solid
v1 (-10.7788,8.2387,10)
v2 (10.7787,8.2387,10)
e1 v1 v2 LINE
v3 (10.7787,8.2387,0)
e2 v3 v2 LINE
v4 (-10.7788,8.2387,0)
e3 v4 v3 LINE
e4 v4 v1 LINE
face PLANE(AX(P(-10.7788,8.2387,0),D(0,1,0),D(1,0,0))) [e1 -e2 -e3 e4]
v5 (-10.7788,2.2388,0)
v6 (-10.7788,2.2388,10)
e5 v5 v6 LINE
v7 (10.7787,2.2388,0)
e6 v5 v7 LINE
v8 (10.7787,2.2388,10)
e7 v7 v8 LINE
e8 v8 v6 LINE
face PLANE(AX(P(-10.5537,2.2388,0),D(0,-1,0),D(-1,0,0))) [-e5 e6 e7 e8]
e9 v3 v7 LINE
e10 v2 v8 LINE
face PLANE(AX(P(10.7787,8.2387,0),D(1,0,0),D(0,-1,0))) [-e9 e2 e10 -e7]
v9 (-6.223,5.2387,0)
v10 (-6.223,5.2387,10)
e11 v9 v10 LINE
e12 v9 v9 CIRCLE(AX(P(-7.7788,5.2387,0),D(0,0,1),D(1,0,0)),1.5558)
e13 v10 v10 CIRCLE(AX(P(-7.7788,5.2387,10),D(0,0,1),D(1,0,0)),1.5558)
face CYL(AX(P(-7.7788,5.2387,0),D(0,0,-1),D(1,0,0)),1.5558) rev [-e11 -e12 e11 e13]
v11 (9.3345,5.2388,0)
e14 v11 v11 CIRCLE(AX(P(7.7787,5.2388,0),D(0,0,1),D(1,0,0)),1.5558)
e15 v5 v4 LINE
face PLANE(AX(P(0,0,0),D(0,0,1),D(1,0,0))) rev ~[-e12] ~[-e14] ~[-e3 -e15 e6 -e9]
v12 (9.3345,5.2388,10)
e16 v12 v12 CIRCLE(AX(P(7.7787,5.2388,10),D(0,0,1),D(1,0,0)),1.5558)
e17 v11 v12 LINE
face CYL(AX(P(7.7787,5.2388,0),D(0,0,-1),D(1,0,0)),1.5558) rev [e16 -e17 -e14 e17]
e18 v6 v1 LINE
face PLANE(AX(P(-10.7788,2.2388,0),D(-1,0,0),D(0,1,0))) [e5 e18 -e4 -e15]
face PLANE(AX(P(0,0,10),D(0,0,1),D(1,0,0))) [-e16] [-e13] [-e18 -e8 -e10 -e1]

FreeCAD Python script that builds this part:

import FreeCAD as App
import Part
import Sketcher
from FreeCAD import Vector

doc = App.newDocument("Part")
body = doc.addObject("PartDesign::Body", "Body")

# Sketch on XY plane
sketch1 = body.newObject("Sketcher::SketchObject", "Sketch")
sketch1.AttachmentSupport = (doc.getObject("XY_Plane"), [""])
sketch1.MapMode = "FlatFace"
sketch1.addGeometry(Part.LineSegment(Vector(-10.7788, 2.2388, 0), Vector(10.7787, 2.2388, 0)), False)
sketch1.addGeometry(Part.LineSegment(Vector(10.7787, 2.2388, 0), Vector(10.7787, 8.2387, 0)), False)
sketch1.addGeometry(Part.LineSegment(Vector(10.7787, 8.2387, 0), Vector(-10.7788, 8.2387, 0)), False)
sketch1.addGeometry(Part.LineSegment(Vector(-10.7788, 8.2387, 0), Vector(-10.7788, 2.2388, 0)), False)
sketch1.addGeometry(Part.Circle(Vector(7.7787, 5.2388, 0), Vector(0, 0, 1), 1.5558), False)
sketch1.addGeometry(Part.Circle(Vector(-7.7788, 5.2387, 0), Vector(0, 0, 1), 1.5558), False)
sketch1.addConstraint(Sketcher.Constraint("Coincident", 0, 2, 1, 1))
sketch1.addConstraint(Sketcher.Constraint("Coincident", 1, 2, 2, 1))
sketch1.addConstraint(Sketcher.Constraint("Coincident", 2, 2, 3, 1))
sketch1.addConstraint(Sketcher.Constraint("Coincident", 3, 2, 0, 1))
sketch1.addConstraint(Sketcher.Constraint("Horizontal", 0))
sketch1.addConstraint(Sketcher.Constraint("Vertical", 1))
sketch1.addConstraint(Sketcher.Constraint("Horizontal", 2))
sketch1.addConstraint(Sketcher.Constraint("Vertical", 3))
sketch1.addConstraint(Sketcher.Constraint("Equal", 4, 5))
sketch1.addConstraint(Sketcher.Constraint("Symmetric", 4, 3, 5, 3, -2))
sketch1.addConstraint(Sketcher.Constraint("DistanceX", 4, 3, 0, 2, 3.0))
sketch1.addConstraint(Sketcher.Constraint("DistanceY", 0, 2, 4, 3, 3.0))
sketch1.addConstraint(Sketcher.Constraint("DistanceY", 4, 3, 1, 2, 3.0))
sketch1.addConstraint(Sketcher.Constraint("DistanceX", 2, 2, 5, 3, 3.0))
sketch1.addConstraint(Sketcher.Constraint("Diameter", 4, 3.1116))
sketch1.addConstraint(Sketcher.Constraint("DistanceX", 0, 1, 0, 2, 21.5575))
sketch1.addConstraint(Sketcher.Constraint("DistanceY", -1, 1, 4, 3, 5.2388))
pad1 = body.newObject("PartDesign::Pad", "Pad")
pad1.Profile = sketch1
pad1.Length = 10

doc.recompute()
